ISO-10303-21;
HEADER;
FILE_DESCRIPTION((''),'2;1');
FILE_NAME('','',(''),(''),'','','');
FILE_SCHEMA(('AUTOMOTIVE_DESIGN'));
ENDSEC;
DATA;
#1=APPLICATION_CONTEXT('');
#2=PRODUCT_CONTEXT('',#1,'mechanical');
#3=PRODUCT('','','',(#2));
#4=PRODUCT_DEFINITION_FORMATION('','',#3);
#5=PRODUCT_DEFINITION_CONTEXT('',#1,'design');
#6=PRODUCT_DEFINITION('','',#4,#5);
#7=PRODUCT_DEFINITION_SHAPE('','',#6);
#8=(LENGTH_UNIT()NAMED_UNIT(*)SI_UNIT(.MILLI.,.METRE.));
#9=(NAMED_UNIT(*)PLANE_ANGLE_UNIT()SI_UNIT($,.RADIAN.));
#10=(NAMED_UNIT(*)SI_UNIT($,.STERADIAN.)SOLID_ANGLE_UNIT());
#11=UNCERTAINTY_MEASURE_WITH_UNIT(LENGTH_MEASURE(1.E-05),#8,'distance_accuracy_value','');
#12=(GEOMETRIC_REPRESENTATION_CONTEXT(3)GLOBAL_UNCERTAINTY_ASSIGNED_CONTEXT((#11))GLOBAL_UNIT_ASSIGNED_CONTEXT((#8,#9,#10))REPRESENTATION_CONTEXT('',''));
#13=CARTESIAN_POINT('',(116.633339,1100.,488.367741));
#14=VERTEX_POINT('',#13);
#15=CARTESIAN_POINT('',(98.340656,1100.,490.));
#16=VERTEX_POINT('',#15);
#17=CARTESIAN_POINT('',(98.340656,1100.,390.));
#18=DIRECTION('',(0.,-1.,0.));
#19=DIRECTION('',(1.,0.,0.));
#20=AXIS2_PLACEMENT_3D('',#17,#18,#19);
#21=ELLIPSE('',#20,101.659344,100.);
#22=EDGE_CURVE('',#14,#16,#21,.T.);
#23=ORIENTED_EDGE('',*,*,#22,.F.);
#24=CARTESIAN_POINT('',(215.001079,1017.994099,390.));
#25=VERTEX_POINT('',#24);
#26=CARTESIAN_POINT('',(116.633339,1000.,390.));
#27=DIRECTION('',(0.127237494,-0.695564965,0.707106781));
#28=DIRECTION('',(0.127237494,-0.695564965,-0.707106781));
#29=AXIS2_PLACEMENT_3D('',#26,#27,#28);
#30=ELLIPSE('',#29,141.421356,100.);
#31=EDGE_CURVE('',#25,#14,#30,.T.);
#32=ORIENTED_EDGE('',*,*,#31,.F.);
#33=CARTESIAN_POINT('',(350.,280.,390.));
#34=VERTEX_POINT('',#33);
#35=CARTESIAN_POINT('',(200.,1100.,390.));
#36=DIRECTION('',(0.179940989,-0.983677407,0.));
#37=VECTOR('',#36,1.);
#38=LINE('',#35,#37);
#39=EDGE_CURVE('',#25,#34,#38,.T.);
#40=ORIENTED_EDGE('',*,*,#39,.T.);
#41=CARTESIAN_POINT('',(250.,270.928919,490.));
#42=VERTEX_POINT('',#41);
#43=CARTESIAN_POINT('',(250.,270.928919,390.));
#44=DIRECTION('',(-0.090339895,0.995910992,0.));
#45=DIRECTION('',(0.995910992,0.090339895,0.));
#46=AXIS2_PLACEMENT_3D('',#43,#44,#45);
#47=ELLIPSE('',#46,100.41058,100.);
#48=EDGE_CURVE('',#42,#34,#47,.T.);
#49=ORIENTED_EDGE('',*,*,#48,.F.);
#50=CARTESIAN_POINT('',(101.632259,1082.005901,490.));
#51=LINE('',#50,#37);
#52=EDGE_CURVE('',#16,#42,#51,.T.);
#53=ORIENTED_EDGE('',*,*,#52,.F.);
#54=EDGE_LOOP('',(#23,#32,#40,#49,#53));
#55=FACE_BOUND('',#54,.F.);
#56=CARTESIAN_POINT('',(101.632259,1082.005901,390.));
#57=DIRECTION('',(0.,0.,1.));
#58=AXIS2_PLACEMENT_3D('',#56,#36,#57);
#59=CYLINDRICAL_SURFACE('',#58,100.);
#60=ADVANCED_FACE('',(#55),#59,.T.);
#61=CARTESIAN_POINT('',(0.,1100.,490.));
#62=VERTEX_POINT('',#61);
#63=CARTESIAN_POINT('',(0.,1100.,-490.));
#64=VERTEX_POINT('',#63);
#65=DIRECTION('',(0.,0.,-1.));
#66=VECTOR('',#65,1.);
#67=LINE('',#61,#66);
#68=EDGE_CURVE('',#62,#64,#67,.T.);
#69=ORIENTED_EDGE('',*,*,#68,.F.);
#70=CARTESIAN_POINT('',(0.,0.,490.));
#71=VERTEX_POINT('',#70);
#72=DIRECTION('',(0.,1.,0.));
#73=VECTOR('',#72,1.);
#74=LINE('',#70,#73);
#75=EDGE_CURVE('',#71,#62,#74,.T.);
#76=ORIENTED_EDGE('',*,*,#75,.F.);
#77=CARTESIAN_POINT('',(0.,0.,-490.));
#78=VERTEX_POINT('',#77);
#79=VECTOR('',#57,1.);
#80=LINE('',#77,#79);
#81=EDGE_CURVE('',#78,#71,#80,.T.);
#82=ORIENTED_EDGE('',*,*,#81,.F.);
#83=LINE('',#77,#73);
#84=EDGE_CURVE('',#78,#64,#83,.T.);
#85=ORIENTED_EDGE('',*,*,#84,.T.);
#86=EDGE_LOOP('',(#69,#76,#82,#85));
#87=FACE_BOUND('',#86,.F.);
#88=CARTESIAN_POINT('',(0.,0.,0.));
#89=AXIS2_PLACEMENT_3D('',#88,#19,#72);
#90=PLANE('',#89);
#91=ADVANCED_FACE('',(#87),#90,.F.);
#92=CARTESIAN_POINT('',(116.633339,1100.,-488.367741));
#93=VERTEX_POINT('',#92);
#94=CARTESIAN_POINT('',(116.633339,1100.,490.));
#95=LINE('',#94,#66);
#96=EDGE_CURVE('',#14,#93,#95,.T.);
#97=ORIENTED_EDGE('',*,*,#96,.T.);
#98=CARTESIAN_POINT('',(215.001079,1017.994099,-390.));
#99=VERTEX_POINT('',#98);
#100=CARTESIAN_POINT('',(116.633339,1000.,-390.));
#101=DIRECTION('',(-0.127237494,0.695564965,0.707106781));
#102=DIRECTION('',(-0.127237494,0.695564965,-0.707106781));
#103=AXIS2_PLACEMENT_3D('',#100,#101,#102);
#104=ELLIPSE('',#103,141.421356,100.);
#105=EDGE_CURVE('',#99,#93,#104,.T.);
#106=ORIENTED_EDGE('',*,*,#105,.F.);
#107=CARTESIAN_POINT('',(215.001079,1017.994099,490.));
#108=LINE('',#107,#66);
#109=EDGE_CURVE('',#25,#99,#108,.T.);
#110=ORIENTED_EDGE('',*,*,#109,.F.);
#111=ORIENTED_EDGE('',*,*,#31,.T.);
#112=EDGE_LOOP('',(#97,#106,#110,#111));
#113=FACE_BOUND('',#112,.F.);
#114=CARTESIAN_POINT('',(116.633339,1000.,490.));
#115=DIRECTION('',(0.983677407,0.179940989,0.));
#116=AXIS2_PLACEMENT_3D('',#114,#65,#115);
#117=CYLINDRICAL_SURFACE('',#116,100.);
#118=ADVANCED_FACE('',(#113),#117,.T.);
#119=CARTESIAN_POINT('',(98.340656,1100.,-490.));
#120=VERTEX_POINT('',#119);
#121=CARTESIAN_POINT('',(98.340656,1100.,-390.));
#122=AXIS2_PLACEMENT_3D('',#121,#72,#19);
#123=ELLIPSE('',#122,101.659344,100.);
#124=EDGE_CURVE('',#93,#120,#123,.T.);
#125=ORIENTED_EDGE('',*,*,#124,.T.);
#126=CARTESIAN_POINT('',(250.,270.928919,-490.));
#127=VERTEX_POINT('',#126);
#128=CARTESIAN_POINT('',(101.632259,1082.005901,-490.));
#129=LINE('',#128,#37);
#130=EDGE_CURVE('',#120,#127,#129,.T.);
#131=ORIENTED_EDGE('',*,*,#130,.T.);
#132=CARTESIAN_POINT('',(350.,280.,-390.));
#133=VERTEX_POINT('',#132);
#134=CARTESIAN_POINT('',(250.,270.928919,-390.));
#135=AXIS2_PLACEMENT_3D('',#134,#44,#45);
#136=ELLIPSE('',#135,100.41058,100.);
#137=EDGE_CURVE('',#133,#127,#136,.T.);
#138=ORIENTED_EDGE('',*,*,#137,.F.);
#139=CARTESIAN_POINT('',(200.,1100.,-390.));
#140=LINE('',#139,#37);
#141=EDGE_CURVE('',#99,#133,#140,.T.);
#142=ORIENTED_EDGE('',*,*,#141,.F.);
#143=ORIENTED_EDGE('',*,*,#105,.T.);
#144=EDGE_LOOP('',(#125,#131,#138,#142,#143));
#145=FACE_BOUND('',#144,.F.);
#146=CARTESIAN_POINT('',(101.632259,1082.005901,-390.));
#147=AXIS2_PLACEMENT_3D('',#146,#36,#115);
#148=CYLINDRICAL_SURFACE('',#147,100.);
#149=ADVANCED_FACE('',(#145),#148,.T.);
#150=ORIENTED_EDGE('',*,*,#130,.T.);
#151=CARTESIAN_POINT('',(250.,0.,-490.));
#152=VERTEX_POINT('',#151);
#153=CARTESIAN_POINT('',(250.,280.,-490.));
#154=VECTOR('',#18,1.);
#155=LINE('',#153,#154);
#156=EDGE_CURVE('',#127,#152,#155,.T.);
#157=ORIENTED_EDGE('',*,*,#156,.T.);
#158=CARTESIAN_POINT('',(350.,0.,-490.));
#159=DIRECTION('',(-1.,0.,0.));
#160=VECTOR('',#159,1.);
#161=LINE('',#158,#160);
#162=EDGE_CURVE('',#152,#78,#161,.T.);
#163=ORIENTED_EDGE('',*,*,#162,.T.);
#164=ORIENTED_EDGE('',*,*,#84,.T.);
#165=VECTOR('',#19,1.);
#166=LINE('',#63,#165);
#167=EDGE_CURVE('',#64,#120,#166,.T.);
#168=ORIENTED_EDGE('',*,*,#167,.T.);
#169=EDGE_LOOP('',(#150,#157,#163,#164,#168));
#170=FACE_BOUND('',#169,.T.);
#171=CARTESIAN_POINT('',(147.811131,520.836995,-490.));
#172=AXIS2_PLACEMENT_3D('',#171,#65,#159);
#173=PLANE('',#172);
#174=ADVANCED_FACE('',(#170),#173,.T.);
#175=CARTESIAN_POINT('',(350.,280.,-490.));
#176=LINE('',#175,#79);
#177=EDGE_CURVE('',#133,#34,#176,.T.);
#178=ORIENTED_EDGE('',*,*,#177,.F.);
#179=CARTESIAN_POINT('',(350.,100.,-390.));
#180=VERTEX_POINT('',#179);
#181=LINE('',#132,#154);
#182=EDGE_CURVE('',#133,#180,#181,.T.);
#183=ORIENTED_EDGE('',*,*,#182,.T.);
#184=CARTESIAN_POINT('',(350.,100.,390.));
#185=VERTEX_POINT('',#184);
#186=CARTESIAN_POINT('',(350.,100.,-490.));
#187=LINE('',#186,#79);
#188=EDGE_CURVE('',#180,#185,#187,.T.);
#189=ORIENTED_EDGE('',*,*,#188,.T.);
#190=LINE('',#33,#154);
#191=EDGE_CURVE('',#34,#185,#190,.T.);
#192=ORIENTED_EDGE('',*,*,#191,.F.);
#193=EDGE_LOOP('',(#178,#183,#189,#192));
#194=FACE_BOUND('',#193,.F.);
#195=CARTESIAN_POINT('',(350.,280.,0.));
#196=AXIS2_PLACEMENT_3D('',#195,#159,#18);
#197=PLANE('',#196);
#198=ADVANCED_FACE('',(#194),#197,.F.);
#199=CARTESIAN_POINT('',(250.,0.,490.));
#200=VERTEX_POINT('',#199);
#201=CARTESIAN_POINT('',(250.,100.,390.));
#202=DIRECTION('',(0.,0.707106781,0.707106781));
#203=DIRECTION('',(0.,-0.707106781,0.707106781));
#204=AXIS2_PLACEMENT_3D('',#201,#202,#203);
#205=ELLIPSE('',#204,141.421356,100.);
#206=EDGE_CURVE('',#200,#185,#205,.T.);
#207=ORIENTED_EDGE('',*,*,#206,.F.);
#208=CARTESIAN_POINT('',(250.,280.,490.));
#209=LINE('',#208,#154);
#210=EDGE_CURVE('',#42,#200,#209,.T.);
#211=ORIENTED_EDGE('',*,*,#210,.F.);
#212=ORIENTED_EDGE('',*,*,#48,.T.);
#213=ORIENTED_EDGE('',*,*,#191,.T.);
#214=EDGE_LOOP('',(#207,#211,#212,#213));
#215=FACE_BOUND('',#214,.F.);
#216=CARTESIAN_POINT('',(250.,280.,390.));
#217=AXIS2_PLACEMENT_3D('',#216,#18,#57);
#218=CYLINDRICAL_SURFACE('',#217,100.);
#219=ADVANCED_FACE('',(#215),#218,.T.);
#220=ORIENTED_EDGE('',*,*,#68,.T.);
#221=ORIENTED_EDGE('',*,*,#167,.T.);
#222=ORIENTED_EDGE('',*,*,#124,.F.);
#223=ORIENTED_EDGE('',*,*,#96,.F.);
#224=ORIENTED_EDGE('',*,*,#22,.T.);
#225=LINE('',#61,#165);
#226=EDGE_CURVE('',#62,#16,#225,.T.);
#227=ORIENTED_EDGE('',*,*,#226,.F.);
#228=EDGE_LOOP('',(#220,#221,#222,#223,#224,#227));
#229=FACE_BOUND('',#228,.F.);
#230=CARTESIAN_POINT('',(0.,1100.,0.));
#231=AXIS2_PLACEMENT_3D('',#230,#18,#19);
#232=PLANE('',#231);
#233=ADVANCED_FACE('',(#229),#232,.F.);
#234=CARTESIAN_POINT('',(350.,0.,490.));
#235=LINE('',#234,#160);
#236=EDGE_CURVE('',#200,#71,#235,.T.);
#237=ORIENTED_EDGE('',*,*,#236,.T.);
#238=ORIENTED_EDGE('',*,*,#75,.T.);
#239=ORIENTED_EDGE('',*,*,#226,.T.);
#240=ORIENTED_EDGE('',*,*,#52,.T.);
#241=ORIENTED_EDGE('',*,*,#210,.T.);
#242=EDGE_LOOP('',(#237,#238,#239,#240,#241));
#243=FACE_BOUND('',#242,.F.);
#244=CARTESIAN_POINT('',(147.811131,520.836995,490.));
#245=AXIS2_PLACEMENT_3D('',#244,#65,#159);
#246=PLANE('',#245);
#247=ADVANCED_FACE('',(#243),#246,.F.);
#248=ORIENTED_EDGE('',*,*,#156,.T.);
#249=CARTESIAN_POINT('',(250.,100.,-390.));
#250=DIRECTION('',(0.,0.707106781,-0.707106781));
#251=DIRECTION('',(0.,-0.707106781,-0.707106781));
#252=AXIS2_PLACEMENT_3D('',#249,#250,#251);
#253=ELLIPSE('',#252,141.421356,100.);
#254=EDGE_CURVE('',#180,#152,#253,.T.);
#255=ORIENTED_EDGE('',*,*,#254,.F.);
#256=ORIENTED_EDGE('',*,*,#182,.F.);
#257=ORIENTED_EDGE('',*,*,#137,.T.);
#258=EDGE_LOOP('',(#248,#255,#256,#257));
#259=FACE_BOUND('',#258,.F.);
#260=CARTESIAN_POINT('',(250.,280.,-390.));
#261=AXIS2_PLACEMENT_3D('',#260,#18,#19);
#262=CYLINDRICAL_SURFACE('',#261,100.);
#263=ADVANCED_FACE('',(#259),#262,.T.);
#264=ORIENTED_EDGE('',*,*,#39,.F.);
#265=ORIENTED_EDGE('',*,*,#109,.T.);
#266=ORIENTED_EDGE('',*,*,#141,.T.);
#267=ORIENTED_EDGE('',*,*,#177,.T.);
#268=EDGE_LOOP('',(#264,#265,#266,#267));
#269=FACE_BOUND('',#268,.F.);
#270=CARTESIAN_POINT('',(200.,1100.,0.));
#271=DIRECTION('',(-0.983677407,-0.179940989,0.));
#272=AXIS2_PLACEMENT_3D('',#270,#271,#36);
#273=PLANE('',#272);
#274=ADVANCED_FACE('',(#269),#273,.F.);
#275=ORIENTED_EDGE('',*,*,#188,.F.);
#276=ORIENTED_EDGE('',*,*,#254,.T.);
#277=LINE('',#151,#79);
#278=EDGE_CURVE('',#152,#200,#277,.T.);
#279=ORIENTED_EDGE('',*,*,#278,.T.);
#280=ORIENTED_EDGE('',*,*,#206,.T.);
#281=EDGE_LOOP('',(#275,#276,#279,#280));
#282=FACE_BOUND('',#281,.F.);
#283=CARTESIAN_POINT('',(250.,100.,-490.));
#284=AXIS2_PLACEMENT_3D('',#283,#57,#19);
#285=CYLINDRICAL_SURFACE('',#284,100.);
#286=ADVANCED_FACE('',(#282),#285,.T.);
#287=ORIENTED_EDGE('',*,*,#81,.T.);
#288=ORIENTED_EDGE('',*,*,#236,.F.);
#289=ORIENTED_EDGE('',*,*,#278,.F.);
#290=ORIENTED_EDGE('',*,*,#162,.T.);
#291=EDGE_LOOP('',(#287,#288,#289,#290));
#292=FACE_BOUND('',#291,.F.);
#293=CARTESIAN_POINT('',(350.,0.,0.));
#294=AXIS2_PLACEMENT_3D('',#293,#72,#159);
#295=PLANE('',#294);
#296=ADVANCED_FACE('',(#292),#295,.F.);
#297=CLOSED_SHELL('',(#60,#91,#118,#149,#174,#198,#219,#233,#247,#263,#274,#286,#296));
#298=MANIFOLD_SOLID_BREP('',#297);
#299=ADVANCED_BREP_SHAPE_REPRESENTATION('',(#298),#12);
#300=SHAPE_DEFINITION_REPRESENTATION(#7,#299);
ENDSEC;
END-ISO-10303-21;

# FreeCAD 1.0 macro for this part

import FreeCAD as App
import Part
import Sketcher
from FreeCAD import Vector


def edges_at(feature, points):
    """Names of the edges that pass closest to the given points."""
    edges = feature.Shape.Edges
    near = lambda p: min(range(len(edges)), key=lambda i: edges[i].distToShape(Part.Vertex(*p))[0])
    return sorted({f"Edge{near(p) + 1}" for p in points})


def add_polygon(sketch, points):
    """Adds a closed chain of lines whose ends are joined by coincident constraints."""
    first, n = sketch.GeometryCount, len(points)
    for a, b in zip(points, points[1:] + points[:1]):
        sketch.addGeometry(Part.LineSegment(App.Vector(*a, 0), App.Vector(*b, 0)), False)
    for i in range(n):
        sketch.addConstraint(Sketcher.Constraint("Coincident", first + i, 2, first + (i + 1) % n, 1))

doc = App.newDocument("Part")
body = doc.addObject("PartDesign::Body", "Body")

sketch1 = body.newObject("Sketcher::SketchObject", "Sketch")
sketch1.AttachmentSupport = (doc.getObject("XY_Plane"), [""])
sketch1.MapMode = "FlatFace"
add_polygon(sketch1, [(0, 1100), (0, 0), (350, 0), (350, 280), (200, 1100)])
sketch1.addConstraint(Sketcher.Constraint("Vertical", 0))
sketch1.addConstraint(Sketcher.Constraint("Horizontal", 1))
sketch1.addConstraint(Sketcher.Constraint("Vertical", 2))
sketch1.addConstraint(Sketcher.Constraint("Horizontal", 4))
sketch1.addConstraint(Sketcher.Constraint("Coincident", 0, 2, -1, 1))
sketch1.addConstraint(Sketcher.Constraint("DistanceX", 1, 1, 1, 2, 350.0))
sketch1.addConstraint(Sketcher.Constraint("DistanceX", 4, 2, 4, 1, 200.0))
sketch1.addConstraint(Sketcher.Constraint("DistanceY", 0, 2, 0, 1, 1100.0))
sketch1.addConstraint(Sketcher.Constraint("DistanceY", 2, 1, 2, 2, 280.0))
pad1 = body.newObject("PartDesign::Pad", "Pad")
pad1.Profile = sketch1
pad1.Length = 980
pad1.Midplane = True
doc.recompute()

fillet = body.newObject("PartDesign::Fillet", "Fillet")
fillet.Base = (pad1, edges_at(pad1, [
    (275, 690, 490),
    (275, 690, -490),
    (350, 140, -490),
    (350, 140, 490),
    (200, 1100, 0),
    (350, 0, 0),
]))
fillet.Radius = 100

doc.recompute()
